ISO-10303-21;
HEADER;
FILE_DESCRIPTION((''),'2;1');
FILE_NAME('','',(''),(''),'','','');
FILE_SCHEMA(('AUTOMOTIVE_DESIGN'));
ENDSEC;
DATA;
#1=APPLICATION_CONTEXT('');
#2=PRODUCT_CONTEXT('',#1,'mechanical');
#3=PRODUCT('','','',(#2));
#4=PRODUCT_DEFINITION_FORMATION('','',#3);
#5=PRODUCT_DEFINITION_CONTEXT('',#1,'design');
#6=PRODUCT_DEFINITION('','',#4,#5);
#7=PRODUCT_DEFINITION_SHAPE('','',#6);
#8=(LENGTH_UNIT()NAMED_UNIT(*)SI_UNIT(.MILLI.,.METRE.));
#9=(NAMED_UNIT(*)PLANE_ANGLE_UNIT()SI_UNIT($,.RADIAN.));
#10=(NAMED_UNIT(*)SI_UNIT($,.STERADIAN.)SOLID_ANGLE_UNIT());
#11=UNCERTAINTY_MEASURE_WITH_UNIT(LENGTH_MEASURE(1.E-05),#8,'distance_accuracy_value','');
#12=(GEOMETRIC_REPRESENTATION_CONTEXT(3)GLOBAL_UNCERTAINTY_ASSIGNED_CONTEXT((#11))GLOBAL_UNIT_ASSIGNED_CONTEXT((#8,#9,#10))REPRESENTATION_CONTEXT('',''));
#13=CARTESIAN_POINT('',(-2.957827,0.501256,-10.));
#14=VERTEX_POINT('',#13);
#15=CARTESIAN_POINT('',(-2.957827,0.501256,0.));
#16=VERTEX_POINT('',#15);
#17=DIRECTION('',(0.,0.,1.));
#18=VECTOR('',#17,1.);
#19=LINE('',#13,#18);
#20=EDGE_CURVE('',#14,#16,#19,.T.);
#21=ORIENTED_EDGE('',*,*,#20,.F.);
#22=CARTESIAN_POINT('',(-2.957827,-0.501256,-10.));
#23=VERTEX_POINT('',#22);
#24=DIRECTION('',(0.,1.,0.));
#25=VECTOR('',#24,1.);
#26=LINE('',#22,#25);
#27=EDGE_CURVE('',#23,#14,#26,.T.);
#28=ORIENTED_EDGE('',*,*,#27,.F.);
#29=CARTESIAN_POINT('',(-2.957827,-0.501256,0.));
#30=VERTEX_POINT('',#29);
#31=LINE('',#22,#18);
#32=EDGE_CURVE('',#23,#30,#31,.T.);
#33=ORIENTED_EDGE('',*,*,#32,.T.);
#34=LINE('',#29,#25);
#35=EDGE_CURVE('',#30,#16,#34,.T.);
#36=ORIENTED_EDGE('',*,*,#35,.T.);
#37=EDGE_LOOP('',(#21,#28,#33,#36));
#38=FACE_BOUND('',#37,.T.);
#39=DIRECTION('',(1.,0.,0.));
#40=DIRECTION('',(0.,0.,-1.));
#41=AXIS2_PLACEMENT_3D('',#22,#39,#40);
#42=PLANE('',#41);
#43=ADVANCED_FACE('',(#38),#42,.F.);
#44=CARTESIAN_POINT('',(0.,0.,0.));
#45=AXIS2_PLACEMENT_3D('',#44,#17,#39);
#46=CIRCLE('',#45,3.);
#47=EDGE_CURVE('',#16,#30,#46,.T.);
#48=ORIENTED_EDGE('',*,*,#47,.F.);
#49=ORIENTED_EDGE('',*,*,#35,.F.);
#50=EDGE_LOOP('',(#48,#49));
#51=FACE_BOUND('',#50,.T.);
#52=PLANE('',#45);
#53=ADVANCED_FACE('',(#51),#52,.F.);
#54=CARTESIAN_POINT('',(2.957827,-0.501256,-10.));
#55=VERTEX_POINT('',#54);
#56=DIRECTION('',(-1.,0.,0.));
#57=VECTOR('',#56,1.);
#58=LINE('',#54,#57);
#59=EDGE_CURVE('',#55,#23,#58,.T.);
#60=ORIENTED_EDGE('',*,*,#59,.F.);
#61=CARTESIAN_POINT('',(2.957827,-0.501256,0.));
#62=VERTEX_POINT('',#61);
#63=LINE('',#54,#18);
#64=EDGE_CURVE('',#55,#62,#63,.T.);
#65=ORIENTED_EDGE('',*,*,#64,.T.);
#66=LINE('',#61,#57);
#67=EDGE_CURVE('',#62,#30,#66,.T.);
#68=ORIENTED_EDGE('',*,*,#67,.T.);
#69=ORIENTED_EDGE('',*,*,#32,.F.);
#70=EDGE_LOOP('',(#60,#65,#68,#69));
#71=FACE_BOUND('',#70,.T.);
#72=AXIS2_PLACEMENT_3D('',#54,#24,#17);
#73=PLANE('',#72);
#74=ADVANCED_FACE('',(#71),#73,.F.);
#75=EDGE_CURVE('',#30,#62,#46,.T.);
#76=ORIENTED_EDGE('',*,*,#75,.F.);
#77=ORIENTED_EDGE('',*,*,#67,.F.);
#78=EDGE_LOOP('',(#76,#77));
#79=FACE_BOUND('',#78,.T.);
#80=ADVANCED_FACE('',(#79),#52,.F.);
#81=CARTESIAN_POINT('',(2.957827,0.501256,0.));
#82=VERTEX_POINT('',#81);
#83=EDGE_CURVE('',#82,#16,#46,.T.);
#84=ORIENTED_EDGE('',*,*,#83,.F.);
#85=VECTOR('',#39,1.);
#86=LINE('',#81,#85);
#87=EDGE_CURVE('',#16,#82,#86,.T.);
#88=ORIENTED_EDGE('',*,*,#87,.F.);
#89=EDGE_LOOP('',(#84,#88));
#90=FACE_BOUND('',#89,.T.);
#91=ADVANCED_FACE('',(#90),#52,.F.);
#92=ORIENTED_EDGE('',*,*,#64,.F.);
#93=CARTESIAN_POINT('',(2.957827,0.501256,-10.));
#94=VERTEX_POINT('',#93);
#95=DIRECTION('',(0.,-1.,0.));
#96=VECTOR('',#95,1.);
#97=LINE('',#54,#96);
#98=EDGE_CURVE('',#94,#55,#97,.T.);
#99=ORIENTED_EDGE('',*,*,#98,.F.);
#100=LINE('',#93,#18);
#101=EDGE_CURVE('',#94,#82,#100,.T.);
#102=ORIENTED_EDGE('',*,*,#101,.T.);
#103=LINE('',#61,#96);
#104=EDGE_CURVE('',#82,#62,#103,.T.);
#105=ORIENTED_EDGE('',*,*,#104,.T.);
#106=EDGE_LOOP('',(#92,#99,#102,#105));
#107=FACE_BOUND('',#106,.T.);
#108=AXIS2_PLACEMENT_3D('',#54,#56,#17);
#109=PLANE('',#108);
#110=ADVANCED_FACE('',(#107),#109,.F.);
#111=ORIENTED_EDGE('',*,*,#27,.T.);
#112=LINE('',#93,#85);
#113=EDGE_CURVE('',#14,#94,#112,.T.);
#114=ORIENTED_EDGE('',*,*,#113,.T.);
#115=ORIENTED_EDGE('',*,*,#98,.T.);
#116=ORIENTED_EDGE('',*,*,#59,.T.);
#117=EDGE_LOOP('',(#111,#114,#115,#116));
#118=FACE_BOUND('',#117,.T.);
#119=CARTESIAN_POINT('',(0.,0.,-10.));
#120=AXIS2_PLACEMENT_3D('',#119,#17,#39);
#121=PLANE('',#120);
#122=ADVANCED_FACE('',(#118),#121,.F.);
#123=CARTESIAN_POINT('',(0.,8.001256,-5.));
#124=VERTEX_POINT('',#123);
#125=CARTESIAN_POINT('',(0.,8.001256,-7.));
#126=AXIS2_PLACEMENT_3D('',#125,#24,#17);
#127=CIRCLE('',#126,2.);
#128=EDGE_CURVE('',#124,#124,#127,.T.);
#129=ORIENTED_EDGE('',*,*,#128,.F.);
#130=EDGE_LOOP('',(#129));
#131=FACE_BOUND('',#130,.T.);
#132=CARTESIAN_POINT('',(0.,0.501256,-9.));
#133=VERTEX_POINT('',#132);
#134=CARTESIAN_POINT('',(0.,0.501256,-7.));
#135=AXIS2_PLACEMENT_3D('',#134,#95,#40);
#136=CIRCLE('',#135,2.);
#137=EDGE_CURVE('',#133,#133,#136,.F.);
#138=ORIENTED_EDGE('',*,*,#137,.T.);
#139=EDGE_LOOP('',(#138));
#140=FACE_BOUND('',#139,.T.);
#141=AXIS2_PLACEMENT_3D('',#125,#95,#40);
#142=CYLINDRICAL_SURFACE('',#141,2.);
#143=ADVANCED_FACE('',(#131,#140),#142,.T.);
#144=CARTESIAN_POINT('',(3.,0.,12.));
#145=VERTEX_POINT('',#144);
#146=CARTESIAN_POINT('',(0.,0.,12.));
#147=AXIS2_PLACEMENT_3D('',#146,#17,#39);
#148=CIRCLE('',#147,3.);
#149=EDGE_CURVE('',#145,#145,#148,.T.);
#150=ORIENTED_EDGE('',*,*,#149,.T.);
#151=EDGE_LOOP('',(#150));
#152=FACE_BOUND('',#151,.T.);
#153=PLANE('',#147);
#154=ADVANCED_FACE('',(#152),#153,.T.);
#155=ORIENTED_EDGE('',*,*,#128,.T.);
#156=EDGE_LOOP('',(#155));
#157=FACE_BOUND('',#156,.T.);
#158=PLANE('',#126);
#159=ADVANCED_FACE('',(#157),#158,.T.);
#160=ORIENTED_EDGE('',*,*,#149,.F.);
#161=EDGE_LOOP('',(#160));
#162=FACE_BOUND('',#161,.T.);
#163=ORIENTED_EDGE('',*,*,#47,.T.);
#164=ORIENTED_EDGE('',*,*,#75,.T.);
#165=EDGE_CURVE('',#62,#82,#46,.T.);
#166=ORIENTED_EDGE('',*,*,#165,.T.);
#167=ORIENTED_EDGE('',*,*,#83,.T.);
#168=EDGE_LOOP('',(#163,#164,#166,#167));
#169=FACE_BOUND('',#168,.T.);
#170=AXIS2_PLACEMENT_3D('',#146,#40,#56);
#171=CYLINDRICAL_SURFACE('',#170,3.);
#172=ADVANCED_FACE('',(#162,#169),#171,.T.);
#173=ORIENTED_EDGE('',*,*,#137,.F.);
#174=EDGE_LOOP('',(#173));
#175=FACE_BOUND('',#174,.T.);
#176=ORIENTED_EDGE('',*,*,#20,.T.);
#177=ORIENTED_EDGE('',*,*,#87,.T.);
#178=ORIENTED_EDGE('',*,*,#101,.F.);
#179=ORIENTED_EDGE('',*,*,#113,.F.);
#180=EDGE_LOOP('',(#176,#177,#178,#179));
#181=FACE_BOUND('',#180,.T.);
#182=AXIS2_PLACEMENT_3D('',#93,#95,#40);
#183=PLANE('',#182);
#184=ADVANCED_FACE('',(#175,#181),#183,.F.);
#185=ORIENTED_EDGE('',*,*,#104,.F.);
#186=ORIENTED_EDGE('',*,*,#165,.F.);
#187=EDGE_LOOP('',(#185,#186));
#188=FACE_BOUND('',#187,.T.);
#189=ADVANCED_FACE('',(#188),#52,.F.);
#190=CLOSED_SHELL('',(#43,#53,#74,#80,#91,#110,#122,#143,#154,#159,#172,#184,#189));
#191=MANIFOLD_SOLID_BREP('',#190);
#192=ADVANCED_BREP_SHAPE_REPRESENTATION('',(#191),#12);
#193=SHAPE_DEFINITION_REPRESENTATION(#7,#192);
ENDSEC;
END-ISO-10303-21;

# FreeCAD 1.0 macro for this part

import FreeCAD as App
import Part
import Sketcher

V = App.Vector


def add_polygon(sketch, points):
    """Adds a closed chain of lines whose ends are joined by coincident constraints."""
    first, n = sketch.GeometryCount, len(points)
    for a, b in zip(points, points[1:] + points[:1]):
        sketch.addGeometry(Part.LineSegment(App.Vector(*a, 0), App.Vector(*b, 0)), False)
    for i in range(n):
        sketch.addConstraint(Sketcher.Constraint("Coincident", first + i, 2, first + (i + 1) % n, 1))

doc = App.newDocument("Part")
body = doc.addObject("PartDesign::Body", "Body")

sketch1 = doc.addObject("Sketcher::SketchObject", "Sketch")
body.addObject(sketch1)
sketch1.AttachmentSupport = (doc.XY_Plane, [""])
sketch1.MapMode = "FlatFace"
sketch1.addGeometry(Part.Circle(V(0, 0, 0), V(0, 0, 1), 3), False)
sketch1.addConstraint([
    Sketcher.Constraint("Coincident", 0, 3, -1, 1),
    Sketcher.Constraint("Diameter", 0, 6.0),
])
pad1 = doc.addObject("PartDesign::Pad", "Pad")
body.addObject(pad1)
pad1.Profile = sketch1
pad1.Length = 12

sketch2 = doc.addObject("Sketcher::SketchObject", "Sketch001")
body.addObject(sketch2)
sketch2.AttachmentSupport = (doc.XY_Plane, [""])
sketch2.MapMode = "FlatFace"
add_polygon(sketch2, [(2.957827, 0.501256), (2.957827, -0.501256), (-2.957827, -0.501256), (-2.957827, 0.501256)])
sketch2.addConstraint([
    Sketcher.Constraint("Vertical", 0),
    Sketcher.Constraint("Horizontal", 1),
    Sketcher.Constraint("Vertical", 2),
    Sketcher.Constraint("Horizontal", 3),
    Sketcher.Constraint("Symmetric", 0, 2, 2, 2, -1, 1),
    Sketcher.Constraint("DistanceX", 1, 2, 1, 1, 5.915654),
    Sketcher.Constraint("DistanceY", 0, 2, 0, 1, 1.002513),
])
pad2 = doc.addObject("PartDesign::Pad", "Pad001")
body.addObject(pad2)
pad2.Profile = sketch2
pad2.Length = 10
pad2.Reversed = True

sketch3 = doc.addObject("Sketcher::SketchObject", "Sketch002")
body.addObject(sketch3)
sketch3.AttachmentSupport = (doc.XZ_Plane, [""])
sketch3.MapMode = "FlatFace"
sketch3.AttachmentOffset = App.Placement(V(0, 0, -0.501256), App.Rotation())
sketch3.addGeometry(Part.Circle(V(0, -7, 0), V(0, 0, 1), 2), False)
sketch3.addConstraint([
    Sketcher.Constraint("PointOnObject", 0, 3, -2),
    Sketcher.Constraint("Diameter", 0, 4.0),
    Sketcher.Constraint("DistanceY", 0, 3, -1, 1, 7.0),
])
pad3 = doc.addObject("PartDesign::Pad", "Pad002")
body.addObject(pad3)
pad3.Profile = sketch3
pad3.Length = 7.5
pad3.Reversed = True

doc.recompute()
